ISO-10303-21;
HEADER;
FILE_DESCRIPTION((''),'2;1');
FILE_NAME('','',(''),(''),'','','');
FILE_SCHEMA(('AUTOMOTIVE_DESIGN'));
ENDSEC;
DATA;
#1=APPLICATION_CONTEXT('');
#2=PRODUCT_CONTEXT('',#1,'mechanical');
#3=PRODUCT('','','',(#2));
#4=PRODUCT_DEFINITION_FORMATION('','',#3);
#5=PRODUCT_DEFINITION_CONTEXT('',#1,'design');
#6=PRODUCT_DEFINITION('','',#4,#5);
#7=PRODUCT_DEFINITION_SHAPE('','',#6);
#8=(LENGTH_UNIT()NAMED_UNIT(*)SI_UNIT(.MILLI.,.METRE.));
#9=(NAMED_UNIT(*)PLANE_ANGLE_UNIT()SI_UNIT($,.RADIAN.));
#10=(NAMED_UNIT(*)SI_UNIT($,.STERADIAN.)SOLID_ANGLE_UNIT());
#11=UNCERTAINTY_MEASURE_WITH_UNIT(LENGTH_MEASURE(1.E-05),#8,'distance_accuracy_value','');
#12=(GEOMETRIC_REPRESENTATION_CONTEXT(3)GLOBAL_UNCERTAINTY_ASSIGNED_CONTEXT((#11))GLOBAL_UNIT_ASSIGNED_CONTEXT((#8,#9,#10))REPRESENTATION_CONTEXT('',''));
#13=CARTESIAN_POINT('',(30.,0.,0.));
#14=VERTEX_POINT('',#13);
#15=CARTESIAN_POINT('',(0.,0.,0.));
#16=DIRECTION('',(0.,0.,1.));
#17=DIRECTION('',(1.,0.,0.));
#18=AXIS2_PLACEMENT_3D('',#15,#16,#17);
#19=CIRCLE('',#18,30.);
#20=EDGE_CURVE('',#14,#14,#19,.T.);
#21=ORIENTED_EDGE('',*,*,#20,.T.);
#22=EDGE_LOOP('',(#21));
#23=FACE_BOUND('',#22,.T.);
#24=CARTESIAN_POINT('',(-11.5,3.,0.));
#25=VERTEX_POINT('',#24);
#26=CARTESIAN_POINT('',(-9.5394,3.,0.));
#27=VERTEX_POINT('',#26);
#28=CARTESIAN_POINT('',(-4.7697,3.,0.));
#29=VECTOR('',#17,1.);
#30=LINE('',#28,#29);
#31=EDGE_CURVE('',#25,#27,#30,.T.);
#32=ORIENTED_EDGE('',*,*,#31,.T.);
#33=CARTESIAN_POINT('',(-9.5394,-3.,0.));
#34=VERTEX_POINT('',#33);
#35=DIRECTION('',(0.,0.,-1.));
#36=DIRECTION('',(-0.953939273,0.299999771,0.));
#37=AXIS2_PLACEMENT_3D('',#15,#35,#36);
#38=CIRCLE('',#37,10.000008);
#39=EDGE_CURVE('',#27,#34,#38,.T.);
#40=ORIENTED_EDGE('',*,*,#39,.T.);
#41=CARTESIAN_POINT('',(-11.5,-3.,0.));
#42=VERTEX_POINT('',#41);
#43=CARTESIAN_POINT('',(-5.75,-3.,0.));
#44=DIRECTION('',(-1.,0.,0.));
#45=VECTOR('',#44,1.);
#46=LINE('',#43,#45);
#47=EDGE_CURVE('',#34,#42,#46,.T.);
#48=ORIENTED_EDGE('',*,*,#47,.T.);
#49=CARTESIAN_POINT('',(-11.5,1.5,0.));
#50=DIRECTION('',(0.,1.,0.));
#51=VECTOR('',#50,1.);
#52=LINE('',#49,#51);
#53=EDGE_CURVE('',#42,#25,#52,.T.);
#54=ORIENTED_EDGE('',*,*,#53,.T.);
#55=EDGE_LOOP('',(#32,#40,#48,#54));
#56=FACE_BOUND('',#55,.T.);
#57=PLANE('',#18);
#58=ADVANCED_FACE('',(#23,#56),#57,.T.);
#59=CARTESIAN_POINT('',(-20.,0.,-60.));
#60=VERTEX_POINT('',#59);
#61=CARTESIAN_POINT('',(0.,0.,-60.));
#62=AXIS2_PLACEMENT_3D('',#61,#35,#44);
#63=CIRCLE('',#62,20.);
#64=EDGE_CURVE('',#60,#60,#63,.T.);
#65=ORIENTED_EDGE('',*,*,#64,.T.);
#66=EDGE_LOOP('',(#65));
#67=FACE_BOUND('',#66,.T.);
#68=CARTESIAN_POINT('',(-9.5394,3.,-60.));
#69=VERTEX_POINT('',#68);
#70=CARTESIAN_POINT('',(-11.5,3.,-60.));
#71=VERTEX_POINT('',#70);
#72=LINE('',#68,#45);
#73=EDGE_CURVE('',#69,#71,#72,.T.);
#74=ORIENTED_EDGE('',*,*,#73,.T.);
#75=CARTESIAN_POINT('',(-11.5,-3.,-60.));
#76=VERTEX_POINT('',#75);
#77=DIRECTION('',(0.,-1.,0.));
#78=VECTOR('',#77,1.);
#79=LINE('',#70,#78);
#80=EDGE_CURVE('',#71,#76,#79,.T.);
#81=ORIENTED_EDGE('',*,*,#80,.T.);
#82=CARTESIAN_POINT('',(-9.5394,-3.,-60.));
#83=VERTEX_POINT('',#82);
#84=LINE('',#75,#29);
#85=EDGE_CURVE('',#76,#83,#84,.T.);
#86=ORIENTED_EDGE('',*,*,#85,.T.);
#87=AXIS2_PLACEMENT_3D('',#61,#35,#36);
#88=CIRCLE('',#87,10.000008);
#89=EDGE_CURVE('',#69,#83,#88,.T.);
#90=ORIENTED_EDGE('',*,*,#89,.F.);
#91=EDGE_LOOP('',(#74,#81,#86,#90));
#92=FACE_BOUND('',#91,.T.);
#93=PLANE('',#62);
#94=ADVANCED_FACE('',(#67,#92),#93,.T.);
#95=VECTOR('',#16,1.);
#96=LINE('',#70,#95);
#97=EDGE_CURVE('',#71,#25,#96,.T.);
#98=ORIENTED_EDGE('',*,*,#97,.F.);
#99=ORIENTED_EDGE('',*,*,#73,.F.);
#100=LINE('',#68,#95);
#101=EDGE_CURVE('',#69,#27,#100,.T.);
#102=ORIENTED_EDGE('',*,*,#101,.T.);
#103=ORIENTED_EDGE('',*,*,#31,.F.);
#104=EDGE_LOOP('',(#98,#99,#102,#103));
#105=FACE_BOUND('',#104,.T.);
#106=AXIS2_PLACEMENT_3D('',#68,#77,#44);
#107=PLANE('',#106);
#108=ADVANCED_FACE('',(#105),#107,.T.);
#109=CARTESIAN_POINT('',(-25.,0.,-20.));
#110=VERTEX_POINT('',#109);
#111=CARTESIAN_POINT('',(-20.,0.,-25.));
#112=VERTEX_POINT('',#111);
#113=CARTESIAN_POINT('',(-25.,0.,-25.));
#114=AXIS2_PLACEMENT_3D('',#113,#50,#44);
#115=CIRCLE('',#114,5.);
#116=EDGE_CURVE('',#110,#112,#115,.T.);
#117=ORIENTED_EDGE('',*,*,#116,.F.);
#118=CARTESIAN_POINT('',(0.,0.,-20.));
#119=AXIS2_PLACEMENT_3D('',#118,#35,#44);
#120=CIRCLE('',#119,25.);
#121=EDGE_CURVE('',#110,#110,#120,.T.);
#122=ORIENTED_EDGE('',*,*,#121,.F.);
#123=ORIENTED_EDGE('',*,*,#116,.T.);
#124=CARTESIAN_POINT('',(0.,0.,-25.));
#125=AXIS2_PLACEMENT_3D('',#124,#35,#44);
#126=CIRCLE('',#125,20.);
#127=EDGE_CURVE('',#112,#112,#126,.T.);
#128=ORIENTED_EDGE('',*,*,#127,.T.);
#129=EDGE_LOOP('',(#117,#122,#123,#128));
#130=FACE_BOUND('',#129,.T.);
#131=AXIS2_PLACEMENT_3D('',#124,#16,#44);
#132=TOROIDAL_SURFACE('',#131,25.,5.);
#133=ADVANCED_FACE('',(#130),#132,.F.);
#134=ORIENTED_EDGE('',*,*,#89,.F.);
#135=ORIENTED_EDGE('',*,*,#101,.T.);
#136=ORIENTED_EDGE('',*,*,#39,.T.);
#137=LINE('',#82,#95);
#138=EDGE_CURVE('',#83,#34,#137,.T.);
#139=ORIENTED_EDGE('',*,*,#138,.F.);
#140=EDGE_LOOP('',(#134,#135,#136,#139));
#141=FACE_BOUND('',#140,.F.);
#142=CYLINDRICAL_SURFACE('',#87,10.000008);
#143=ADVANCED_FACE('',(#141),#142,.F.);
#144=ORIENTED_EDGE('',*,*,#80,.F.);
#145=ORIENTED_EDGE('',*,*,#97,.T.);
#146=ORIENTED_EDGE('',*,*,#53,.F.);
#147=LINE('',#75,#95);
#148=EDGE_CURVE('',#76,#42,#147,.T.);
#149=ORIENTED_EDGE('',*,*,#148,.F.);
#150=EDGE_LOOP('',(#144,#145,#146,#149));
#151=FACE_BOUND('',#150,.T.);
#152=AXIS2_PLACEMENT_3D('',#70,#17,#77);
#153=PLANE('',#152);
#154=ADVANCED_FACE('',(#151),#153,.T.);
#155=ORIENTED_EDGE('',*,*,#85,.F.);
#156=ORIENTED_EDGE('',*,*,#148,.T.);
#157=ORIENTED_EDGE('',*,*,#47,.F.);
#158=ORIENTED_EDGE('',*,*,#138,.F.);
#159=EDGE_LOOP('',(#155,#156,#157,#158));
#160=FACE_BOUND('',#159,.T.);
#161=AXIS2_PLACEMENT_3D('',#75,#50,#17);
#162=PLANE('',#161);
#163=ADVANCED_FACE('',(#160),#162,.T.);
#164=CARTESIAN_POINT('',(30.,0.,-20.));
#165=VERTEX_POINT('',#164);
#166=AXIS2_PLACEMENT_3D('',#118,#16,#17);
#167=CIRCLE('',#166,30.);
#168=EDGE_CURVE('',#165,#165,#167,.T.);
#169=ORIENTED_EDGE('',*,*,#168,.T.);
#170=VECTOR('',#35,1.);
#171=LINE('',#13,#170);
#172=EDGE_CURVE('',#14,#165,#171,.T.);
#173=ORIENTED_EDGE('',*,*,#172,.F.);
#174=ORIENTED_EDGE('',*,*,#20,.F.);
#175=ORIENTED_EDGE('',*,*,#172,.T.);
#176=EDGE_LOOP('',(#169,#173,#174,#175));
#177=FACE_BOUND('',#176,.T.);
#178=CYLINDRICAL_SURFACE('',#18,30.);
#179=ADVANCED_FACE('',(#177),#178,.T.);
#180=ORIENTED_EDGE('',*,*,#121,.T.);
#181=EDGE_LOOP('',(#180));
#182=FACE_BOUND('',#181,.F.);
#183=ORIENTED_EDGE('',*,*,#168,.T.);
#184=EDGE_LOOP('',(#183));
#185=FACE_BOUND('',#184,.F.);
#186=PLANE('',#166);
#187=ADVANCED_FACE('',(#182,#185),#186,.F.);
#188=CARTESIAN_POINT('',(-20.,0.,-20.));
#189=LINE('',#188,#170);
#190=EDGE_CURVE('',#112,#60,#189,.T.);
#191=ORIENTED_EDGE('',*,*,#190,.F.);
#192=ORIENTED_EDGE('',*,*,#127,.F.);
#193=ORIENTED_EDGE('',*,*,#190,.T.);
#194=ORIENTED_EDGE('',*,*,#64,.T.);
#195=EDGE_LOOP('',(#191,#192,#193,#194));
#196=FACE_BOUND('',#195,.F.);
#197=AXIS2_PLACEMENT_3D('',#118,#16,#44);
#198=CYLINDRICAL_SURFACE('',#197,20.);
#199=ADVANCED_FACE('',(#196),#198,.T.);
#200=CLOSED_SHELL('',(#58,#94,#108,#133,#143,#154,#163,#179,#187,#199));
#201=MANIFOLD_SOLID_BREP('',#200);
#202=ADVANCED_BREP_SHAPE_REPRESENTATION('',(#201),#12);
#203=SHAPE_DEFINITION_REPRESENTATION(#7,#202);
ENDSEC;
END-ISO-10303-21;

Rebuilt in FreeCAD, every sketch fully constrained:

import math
import FreeCAD as App
import Part
import Sketcher
from FreeCAD import Vector
Q = App.Units.Quantity


def edges_at(feature, points):
    """Names of the edges that pass closest to the given points."""
    edges = feature.Shape.Edges
    near = lambda p: min(range(len(edges)), key=lambda i: edges[i].distToShape(Part.Vertex(*p))[0])
    return sorted({f"Edge{near(p) + 1}" for p in points})

doc = App.newDocument("Part")
body = doc.addObject("PartDesign::Body", "Body")

# Sketch on XY plane
sketch1 = body.newObject("Sketcher::SketchObject", "Sketch")
sketch1.AttachmentSupport = (doc.getObject("XY_Plane"), [""])
sketch1.MapMode = "FlatFace"
sketch1.addGeometry(Part.Circle(Vector(0, 0, 0), Vector(0, 0, 1), 30), False)
sketch1.addConstraint([
    Sketcher.Constraint("Coincident", 0, 3, -1, 1),
    Sketcher.Constraint("Diameter", 0, Q("60 mm")),
])
pad1 = body.newObject("PartDesign::Pad", "Pad")
pad1.Profile = sketch1
pad1.Length = 20
pad1.Reversed = True

# Sketch on XY plane
sketch2 = body.newObject("Sketcher::SketchObject", "Sketch001")
sketch2.AttachmentSupport = (doc.getObject("XY_Plane"), [""])
sketch2.MapMode = "FlatFace"
sketch2.AttachmentOffset = App.Placement(Vector(0, 0, -20), App.Rotation())
sketch2.addGeometry(Part.Circle(Vector(0, 0, 0), Vector(0, 0, 1), 20), False)
sketch2.addConstraint([
    Sketcher.Constraint("Coincident", 0, 3, -1, 1),
    Sketcher.Constraint("Diameter", 0, Q("40 mm")),
])
pad2 = body.newObject("PartDesign::Pad", "Pad001")
pad2.Profile = sketch2
pad2.Length = 40
pad2.Reversed = True

# Sketch on XY plane
sketch3 = body.newObject("Sketcher::SketchObject", "Sketch002")
sketch3.AttachmentSupport = (doc.getObject("XY_Plane"), [""])
sketch3.MapMode = "FlatFace"
sketch3.AttachmentOffset = App.Placement(Vector(0, 0, -60), App.Rotation())
sketch3.addGeometry([
    Part.LineSegment(Vector(-11.5, 3, 0), Vector(-9.5394, 3, 0)),
    Part.ArcOfCircle(Part.Circle(Vector(0, 0, 0), Vector(0, 0, 1), 10.000008), math.radians(-162.542411), math.radians(162.542411)),
    Part.LineSegment(Vector(-9.5394, -3, 0), Vector(-11.5, -3, 0)),
    Part.LineSegment(Vector(-11.5, -3, 0), Vector(-11.5, 3, 0)),
], False)
sketch3.addConstraint([
    Sketcher.Constraint("Coincident", 0, 2, 1, 2),
    Sketcher.Constraint("Coincident", 1, 1, 2, 1),
    Sketcher.Constraint("Coincident", 2, 2, 3, 1),
    Sketcher.Constraint("Coincident", 3, 2, 0, 1),
    Sketcher.Constraint("Horizontal", 0),
    Sketcher.Constraint("Horizontal", 2),
    Sketcher.Constraint("Vertical", 3),
    Sketcher.Constraint("Coincident", 1, 3, -1, 1),
    Sketcher.Constraint("Vertical", 0, 2, 1, 1),
    Sketcher.Constraint("Radius", 1, Q("10 mm")),
    Sketcher.Constraint("DistanceY", -1, 1, 0, 2, Q("3 mm")),
    Sketcher.Constraint("DistanceX", 2, 2, -1, 1, Q("11.5 mm")),
])
pocket1 = body.newObject("PartDesign::Pocket", "Pocket")
pocket1.Profile = sketch3
pocket1.Type = "ThroughAll"
pocket1.Reversed = True
doc.recompute()

fillet = body.newObject("PartDesign::Fillet", "Fillet")
fillet.Base = (pocket1, edges_at(pocket1, [(20, 0, -20)]))
fillet.Radius = 5

doc.recompute()
